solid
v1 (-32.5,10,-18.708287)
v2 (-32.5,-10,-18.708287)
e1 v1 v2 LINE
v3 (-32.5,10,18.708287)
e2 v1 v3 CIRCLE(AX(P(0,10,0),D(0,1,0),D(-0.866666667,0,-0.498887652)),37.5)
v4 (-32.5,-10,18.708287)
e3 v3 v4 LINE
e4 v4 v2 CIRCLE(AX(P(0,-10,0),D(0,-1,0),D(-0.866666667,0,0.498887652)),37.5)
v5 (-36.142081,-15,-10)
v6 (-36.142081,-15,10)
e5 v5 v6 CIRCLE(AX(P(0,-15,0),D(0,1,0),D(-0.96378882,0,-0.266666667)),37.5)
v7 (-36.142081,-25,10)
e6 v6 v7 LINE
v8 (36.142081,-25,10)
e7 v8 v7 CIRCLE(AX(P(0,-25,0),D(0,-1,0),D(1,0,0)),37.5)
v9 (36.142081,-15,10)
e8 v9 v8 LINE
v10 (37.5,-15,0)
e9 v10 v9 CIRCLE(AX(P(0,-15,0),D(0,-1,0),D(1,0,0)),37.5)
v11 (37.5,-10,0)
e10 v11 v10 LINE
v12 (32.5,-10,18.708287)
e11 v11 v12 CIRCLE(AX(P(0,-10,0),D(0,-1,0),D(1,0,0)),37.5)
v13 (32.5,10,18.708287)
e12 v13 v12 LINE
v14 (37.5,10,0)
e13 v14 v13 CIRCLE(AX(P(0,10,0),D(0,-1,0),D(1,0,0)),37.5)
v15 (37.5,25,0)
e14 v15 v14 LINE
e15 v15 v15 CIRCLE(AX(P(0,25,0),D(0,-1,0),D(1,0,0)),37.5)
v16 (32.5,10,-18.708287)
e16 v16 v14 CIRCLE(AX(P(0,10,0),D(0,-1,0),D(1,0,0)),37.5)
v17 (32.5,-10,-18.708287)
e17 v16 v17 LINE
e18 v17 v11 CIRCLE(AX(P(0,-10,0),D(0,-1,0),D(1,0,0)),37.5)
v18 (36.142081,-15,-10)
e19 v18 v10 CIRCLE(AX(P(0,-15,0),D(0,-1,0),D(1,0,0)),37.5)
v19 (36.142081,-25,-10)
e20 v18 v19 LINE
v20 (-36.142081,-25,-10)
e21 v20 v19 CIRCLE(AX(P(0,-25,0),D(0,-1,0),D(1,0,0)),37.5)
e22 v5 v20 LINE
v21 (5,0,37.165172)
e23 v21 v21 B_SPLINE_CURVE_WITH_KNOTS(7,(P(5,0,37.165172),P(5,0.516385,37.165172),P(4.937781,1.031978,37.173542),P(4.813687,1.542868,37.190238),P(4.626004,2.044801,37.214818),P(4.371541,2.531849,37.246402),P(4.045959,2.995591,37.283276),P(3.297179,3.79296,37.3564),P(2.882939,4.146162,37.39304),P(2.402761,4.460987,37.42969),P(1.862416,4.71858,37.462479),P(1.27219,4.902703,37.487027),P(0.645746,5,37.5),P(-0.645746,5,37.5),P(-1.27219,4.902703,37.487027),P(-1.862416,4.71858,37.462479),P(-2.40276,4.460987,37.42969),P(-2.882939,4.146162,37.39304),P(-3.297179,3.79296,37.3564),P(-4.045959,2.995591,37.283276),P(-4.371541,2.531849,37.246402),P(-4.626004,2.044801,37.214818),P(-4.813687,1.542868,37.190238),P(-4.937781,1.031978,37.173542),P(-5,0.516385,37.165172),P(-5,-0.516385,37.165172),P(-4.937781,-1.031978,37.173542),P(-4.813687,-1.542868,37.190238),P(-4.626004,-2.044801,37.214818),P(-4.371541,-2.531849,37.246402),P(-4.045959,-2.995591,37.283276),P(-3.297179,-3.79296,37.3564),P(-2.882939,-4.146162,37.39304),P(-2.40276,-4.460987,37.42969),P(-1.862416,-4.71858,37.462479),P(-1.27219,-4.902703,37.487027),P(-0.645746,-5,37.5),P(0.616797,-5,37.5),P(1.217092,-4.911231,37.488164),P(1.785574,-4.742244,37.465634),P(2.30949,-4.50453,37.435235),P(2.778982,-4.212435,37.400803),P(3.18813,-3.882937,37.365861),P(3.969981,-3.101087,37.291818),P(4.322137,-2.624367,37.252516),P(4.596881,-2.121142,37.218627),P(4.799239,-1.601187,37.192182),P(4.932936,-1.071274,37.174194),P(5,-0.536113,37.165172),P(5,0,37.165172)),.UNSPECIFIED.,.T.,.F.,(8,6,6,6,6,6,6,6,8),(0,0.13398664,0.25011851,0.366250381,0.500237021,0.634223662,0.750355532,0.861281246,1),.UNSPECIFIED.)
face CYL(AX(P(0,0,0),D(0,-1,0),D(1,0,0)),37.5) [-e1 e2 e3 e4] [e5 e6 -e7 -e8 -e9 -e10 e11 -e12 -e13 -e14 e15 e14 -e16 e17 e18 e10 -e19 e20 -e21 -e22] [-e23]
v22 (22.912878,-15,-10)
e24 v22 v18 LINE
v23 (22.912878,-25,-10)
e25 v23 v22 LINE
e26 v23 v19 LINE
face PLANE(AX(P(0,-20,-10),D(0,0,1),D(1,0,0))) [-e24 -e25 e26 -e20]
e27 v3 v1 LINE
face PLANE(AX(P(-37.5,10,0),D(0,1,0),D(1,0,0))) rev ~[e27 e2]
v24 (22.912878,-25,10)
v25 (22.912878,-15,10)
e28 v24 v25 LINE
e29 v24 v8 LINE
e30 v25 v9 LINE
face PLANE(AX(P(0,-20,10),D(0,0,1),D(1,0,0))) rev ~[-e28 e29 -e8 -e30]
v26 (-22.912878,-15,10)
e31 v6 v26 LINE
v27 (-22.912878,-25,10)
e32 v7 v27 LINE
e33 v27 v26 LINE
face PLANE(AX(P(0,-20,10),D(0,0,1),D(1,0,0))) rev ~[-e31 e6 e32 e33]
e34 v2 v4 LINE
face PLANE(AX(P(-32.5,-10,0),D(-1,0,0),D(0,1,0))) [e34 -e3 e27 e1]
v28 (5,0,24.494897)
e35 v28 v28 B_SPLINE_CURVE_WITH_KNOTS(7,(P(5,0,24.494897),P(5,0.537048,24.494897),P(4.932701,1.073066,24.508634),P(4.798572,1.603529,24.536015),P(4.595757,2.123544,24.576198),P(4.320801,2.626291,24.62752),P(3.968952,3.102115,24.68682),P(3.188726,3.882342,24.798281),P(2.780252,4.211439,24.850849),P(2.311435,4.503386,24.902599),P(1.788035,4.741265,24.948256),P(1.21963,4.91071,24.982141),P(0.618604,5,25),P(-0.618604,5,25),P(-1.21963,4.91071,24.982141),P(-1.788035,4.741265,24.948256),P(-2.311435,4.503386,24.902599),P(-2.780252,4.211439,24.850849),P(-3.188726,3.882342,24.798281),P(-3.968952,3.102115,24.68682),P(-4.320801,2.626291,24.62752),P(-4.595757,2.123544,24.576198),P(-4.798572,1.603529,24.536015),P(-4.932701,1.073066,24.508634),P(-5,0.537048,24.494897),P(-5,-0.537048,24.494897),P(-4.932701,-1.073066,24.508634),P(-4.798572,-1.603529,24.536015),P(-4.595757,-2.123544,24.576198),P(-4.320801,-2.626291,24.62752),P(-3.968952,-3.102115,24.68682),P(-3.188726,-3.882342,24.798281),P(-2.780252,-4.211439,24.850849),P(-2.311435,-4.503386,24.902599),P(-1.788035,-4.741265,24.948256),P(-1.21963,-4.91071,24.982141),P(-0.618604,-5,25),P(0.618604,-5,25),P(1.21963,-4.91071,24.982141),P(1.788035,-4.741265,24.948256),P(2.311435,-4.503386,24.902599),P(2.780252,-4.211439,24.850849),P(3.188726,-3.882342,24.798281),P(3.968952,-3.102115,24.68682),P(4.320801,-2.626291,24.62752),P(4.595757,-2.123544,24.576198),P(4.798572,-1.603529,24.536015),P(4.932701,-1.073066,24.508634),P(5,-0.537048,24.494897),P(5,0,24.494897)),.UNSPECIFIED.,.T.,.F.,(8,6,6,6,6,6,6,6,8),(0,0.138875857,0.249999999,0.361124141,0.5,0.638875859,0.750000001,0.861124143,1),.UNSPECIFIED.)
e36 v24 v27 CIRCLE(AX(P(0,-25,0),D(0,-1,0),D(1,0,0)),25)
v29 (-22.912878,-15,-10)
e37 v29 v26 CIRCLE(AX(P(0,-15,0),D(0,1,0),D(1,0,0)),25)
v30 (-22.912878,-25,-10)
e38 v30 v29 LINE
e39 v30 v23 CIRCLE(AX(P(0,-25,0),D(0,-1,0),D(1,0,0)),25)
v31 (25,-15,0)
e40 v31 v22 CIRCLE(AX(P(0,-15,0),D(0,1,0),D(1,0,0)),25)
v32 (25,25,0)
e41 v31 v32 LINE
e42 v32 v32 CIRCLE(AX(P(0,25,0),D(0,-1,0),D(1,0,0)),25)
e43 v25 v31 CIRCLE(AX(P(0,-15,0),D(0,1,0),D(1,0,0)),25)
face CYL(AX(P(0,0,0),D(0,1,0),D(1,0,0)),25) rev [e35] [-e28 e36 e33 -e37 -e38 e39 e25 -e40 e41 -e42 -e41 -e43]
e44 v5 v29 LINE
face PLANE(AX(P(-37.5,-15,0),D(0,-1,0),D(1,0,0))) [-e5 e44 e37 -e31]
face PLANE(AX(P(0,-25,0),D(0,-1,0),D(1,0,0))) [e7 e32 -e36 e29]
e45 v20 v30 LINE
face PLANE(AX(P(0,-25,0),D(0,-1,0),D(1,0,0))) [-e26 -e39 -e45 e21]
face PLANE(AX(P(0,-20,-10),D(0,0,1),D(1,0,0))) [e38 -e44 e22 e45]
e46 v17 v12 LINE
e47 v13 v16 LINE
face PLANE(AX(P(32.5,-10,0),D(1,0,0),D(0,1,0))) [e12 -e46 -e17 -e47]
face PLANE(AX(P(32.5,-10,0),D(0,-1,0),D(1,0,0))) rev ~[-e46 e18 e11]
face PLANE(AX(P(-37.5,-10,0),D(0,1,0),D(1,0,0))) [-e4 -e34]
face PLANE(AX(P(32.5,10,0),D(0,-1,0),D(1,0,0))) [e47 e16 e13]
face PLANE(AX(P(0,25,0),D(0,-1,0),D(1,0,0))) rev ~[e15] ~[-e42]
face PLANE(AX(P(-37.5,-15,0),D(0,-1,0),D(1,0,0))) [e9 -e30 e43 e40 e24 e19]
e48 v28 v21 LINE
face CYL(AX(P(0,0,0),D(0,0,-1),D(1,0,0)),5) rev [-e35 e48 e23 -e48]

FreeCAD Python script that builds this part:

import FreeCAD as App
import Part
import Sketcher


def add_polygon(sketch, points):
    """Adds a closed chain of lines whose ends are joined by coincident constraints."""
    first, n = sketch.GeometryCount, len(points)
    for a, b in zip(points, points[1:] + points[:1]):
        sketch.addGeometry(Part.LineSegment(App.Vector(*a, 0), App.Vector(*b, 0)), False)
    for i in range(n):
        sketch.addConstraint(Sketcher.Constraint("Coincident", first + i, 2, first + (i + 1) % n, 1))

doc = App.newDocument("Part")
body = doc.addObject("PartDesign::Body", "Body")

# Sketch on XZ plane
sketch1 = body.newObject("Sketcher::SketchObject", "Sketch")
sketch1.AttachmentSupport = (doc.getObject("XZ_Plane"), [""])
sketch1.MapMode = "FlatFace"
sketch1.addGeometry([
    Part.Circle(App.Vector(0, 0, 0), App.Vector(0, 0, 1), 38),
    Part.Circle(App.Vector(0, 0, 0), App.Vector(0, 0, 1), 25),
], False)
sketch1.addConstraint([
    Sketcher.Constraint("Coincident", 0, 3, -1, 1),
    Sketcher.Constraint("Coincident", 1, 3, -1, 1),
    Sketcher.Constraint("Diameter", 0, 75.0),
    Sketcher.Constraint("Diameter", 1, 50.0),
])
pad1 = body.newObject("PartDesign::Pad", "Pad")
pad1.Profile = sketch1
pad1.Length = 50
pad1.Midplane = True

# Sketch on XY plane
sketch2 = body.newObject("Sketcher::SketchObject", "Sketch001")
sketch2.AttachmentSupport = (doc.getObject("XY_Plane"), [""])
sketch2.MapMode = "FlatFace"
add_polygon(sketch2, [(-38, 10), (-38, -10), (-32, -10), (-32, 10)])  # lines 0-3
add_polygon(sketch2, [(32, 10), (32, -10), (38, -10), (38, 10)])  # lines 4-7
sketch2.addConstraint([
    Sketcher.Constraint("Vertical", 0),
    Sketcher.Constraint("Horizontal", 1),
    Sketcher.Constraint("Vertical", 2),
    Sketcher.Constraint("Horizontal", 3),
    Sketcher.Constraint("Vertical", 4),
    Sketcher.Constraint("Horizontal", 5),
    Sketcher.Constraint("Vertical", 6),
    Sketcher.Constraint("Horizontal", 7),
    Sketcher.Constraint("Symmetric", 2, 2, 4, 2, -1, 1),
    Sketcher.Constraint("Symmetric", 0, 2, 6, 2, -1, 1),
    Sketcher.Constraint("Horizontal", 1, 2, 4, 2),
    Sketcher.Constraint("DistanceX", 1, 1, 1, 2, 5.0),
    Sketcher.Constraint("DistanceY", 0, 2, 0, 1, 20.0),
    Sketcher.Constraint("DistanceX", 1, 2, 4, 2, 65.0),
])
pocket1 = body.newObject("PartDesign::Pocket", "Pocket")
pocket1.Profile = sketch2
pocket1.Length = 100
pocket1.Midplane = True

# Sketch on XY plane
sketch3 = body.newObject("Sketcher::SketchObject", "Sketch002")
sketch3.AttachmentSupport = (doc.getObject("XY_Plane"), [""])
sketch3.MapMode = "FlatFace"
add_polygon(sketch3, [(-38, -15), (-38, -25), (38, -25), (38, -15)])  # lines 0-3
sketch3.addConstraint([
    Sketcher.Constraint("Vertical", 0),
    Sketcher.Constraint("Horizontal", 1),
    Sketcher.Constraint("Vertical", 2),
    Sketcher.Constraint("Horizontal", 3),
    Sketcher.Constraint("DistanceX", 1, 1, 1, 2, 75.0),
    Sketcher.Constraint("DistanceY", 0, 2, 0, 1, 10.0),
    Sketcher.Constraint("DistanceY", 0, 2, -1, 1, 25.0),
    Sketcher.Constraint("DistanceX", 0, 2, -1, 1, 37.5),
])
pocket2 = body.newObject("PartDesign::Pocket", "Pocket001")
pocket2.Profile = sketch3
pocket2.Length = 20
pocket2.Midplane = True

# Sketch on XY plane
sketch4 = body.newObject("Sketcher::SketchObject", "Sketch003")
sketch4.AttachmentSupport = (doc.getObject("XY_Plane"), [""])
sketch4.MapMode = "FlatFace"
add_polygon(sketch4, [(-38, -15), (-38, -25), (38, -25), (38, -15)])  # lines 0-3
sketch4.addConstraint([
    Sketcher.Constraint("Vertical", 0),
    Sketcher.Constraint("Horizontal", 1),
    Sketcher.Constraint("Vertical", 2),
    Sketcher.Constraint("Horizontal", 3),
    Sketcher.Constraint("DistanceX", 1, 1, 1, 2, 75.0),
    Sketcher.Constraint("DistanceY", 0, 2, 0, 1, 10.0),
    Sketcher.Constraint("DistanceY", 0, 2, -1, 1, 25.0),
    Sketcher.Constraint("DistanceX", 0, 2, -1, 1, 37.5),
])
pocket3 = body.newObject("PartDesign::Pocket", "Pocket002")
pocket3.Profile = sketch4
pocket3.Length = 20
pocket3.Midplane = True

# Sketch on XY plane
sketch5 = body.newObject("Sketcher::SketchObject", "Sketch004")
sketch5.AttachmentSupport = (doc.getObject("XY_Plane"), [""])
sketch5.MapMode = "FlatFace"
sketch5.addGeometry(Part.Circle(App.Vector(0, 0, 0), App.Vector(0, 0, 1), 5), False)
sketch5.addConstraint([
    Sketcher.Constraint("Coincident", 0, 3, -1, 1),
    Sketcher.Constraint("Diameter", 0, 10.0),
])
pocket4 = body.newObject("PartDesign::Pocket", "Pocket003")
pocket4.Profile = sketch5
pocket4.Type = "ThroughAll"
pocket4.Reversed = True

doc.recompute()
